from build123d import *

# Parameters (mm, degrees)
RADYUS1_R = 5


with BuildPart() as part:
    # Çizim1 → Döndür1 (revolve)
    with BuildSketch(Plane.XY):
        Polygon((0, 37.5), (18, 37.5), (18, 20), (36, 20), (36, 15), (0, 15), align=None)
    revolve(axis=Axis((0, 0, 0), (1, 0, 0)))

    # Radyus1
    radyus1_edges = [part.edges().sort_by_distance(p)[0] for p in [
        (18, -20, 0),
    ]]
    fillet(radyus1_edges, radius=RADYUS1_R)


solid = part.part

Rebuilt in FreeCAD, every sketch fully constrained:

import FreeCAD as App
import Part
import Sketcher
Q = App.Units.Quantity


def edges_at(feature, points):
    """Names of the edges that pass closest to the given points."""
    edges = feature.Shape.Edges
    near = lambda p: min(range(len(edges)), key=lambda i: edges[i].distToShape(Part.Vertex(*p))[0])
    return sorted({f"Edge{near(p) + 1}" for p in points})


def add_polygon(sketch, points):
    """Adds a closed chain of lines whose ends are joined by coincident constraints."""
    first, n = sketch.GeometryCount, len(points)
    for a, b in zip(points, points[1:] + points[:1]):
        sketch.addGeometry(Part.LineSegment(App.Vector(*a, 0), App.Vector(*b, 0)), False)
    for i in range(n):
        sketch.addConstraint(Sketcher.Constraint("Coincident", first + i, 2, first + (i + 1) % n, 1))

doc = App.newDocument("Part")
body = doc.addObject("PartDesign::Body", "Body")

# Sketch on XY plane
sketch1 = body.newObject("Sketcher::SketchObject", "Sketch")
sketch1.AttachmentSupport = (doc.getObject("XY_Plane"), [""])
sketch1.MapMode = "FlatFace"
add_polygon(sketch1, [(18, 38), (0, 38), (0, 15), (36, 15), (36, 20), (18, 20)])  # lines 0-5
sketch1.addConstraint(Sketcher.Constraint("Horizontal", 0))
sketch1.addConstraint(Sketcher.Constraint("Vertical", 1))
sketch1.addConstraint(Sketcher.Constraint("Horizontal", 2))
sketch1.addConstraint(Sketcher.Constraint("Vertical", 3))
sketch1.addConstraint(Sketcher.Constraint("Horizontal", 4))
sketch1.addConstraint(Sketcher.Constraint("Vertical", 5))
sketch1.addConstraint(Sketcher.Constraint("PointOnObject", 0, 2, -2))
sketch1.addConstraint(Sketcher.Constraint("Equal", 0, 4))
sketch1.addConstraint(Sketcher.Constraint("DistanceX", 0, 2, 0, 1, Q("18 mm")))
sketch1.addConstraint(Sketcher.Constraint("DistanceY", 3, 1, 3, 2, Q("5 mm")))
sketch1.addConstraint(Sketcher.Constraint("DistanceY", 1, 2, 1, 1, Q("22.5 mm")))
sketch1.addConstraint(Sketcher.Constraint("DistanceY", -1, 1, 1, 2, Q("15 mm")))
revolution = body.newObject("PartDesign::Revolution", "Revolution")
revolution.Profile = sketch1
revolution.ReferenceAxis = (sketch1, ["H_Axis"])
revolution.Angle = 360
doc.recompute()

fillet = body.newObject("PartDesign::Fillet", "Fillet")
fillet.Base = (revolution, edges_at(revolution, [(18, -20, 0)]))
fillet.Radius = 5

doc.recompute()
